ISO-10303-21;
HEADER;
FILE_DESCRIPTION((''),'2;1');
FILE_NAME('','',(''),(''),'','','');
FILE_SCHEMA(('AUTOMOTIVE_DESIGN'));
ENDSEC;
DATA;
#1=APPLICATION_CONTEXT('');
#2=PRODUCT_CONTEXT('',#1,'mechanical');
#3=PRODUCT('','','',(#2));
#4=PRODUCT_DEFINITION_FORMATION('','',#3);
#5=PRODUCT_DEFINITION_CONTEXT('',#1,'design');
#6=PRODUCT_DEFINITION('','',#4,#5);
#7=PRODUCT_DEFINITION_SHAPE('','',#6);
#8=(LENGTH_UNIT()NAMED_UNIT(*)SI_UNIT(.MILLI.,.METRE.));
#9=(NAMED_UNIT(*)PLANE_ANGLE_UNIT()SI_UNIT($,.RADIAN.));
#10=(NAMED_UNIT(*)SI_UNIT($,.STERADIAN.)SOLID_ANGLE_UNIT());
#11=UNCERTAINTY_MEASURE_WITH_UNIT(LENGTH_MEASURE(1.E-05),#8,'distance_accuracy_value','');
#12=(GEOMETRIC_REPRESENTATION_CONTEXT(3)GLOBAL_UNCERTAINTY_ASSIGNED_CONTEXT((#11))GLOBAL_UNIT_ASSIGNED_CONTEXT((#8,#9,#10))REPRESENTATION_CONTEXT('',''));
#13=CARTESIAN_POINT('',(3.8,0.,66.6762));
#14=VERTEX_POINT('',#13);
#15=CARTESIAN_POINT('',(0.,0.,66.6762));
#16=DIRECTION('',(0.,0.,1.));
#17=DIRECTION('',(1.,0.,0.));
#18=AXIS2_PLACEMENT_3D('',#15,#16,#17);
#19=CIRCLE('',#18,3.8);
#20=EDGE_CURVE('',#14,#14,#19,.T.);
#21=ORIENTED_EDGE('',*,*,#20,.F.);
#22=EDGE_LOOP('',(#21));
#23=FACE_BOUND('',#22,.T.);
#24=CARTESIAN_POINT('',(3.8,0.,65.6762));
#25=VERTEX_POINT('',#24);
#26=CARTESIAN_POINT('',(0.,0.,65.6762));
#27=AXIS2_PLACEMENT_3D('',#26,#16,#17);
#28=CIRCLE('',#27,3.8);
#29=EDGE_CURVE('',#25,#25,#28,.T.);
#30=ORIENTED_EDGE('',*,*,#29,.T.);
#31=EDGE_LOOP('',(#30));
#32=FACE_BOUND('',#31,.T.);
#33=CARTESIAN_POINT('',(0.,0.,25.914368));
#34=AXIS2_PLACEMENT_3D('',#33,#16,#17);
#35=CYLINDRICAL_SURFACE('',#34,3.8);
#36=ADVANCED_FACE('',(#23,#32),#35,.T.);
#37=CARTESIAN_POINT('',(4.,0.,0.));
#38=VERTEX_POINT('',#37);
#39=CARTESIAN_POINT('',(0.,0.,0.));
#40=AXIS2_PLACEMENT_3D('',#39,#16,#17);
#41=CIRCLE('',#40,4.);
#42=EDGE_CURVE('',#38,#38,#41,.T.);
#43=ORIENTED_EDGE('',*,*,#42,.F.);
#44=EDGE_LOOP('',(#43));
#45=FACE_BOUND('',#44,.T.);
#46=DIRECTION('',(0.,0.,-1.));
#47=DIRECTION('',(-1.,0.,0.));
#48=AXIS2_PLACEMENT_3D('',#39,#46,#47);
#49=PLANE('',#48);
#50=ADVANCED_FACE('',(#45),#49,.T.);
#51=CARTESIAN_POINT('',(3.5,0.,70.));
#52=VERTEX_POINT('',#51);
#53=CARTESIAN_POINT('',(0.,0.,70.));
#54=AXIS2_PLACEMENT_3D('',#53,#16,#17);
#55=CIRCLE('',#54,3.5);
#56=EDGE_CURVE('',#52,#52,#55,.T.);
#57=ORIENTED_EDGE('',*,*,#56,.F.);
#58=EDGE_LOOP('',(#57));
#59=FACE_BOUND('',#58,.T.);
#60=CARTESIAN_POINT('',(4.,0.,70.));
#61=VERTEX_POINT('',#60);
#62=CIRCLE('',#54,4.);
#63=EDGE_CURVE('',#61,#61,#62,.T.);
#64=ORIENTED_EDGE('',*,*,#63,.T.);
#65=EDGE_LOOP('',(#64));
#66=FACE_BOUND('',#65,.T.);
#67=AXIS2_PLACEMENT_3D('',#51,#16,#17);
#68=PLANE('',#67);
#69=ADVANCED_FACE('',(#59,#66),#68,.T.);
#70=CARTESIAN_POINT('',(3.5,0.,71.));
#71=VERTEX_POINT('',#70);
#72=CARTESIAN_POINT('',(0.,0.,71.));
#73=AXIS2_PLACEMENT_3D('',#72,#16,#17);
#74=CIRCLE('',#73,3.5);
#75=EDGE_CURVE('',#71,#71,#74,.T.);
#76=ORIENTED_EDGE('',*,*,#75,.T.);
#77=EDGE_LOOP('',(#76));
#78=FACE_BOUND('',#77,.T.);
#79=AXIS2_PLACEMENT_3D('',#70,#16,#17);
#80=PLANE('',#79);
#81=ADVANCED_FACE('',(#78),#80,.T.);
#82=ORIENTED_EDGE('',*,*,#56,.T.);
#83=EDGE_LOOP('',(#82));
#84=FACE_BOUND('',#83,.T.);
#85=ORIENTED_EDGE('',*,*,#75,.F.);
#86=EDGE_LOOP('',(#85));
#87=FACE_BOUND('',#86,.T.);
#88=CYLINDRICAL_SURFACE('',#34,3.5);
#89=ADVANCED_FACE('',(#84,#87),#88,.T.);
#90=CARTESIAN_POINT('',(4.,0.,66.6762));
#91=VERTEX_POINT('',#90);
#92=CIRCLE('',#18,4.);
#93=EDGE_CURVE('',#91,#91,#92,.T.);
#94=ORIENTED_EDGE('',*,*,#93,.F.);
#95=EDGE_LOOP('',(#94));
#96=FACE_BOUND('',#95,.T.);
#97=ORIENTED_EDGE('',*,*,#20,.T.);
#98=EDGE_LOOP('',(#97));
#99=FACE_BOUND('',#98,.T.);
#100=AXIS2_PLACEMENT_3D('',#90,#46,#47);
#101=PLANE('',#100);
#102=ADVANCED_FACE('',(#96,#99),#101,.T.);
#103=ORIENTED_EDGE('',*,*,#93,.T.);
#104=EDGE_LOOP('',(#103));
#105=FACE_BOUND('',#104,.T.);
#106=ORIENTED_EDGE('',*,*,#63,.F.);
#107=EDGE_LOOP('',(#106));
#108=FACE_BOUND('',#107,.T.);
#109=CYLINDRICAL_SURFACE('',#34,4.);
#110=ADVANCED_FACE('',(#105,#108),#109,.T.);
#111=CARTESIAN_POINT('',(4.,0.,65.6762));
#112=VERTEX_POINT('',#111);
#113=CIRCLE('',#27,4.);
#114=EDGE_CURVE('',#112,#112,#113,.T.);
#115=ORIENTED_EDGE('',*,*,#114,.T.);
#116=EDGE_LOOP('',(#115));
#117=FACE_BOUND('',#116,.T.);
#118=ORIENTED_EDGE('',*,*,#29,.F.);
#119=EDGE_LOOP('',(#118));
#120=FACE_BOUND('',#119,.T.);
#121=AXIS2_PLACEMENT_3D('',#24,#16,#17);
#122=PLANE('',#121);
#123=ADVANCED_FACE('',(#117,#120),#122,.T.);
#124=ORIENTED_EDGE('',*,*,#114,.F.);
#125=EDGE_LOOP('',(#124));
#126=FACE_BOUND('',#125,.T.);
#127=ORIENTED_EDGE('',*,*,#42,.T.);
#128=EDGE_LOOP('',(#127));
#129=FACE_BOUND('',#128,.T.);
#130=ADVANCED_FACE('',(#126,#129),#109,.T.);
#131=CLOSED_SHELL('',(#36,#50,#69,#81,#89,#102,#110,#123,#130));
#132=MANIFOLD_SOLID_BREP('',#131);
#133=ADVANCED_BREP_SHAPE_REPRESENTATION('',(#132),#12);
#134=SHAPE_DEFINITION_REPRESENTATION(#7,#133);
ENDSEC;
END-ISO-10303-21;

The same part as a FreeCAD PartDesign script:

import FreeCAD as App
import Part
import Sketcher

V = App.Vector

doc = App.newDocument("Part")
params = doc.addObject("Spreadsheet::Sheet", "Params")
for row, (alias, value) in enumerate([
    ("sketch1_width", "4 mm"),
    ("sketch1_height", "71 mm"),
    ("sketch1_height2", "1 mm"),
    ("sketch1_width2", "3.5 mm"),
    ("sketch1_width3", "0.2 mm"),
    ("revolution_angle", "360 deg"),
], start=1):
    params.set(f"A{row}", alias)
    params.set(f"B{row}", "=" + value)
    params.setAlias(f"B{row}", alias)

body = doc.addObject("PartDesign::Body", "Body")

# Sketch on XZ plane
sketch1 = body.newObject("Sketcher::SketchObject", "Sketch")
sketch1.AttachmentSupport = (doc.getObject("XZ_Plane"), [""])
sketch1.MapMode = "FlatFace"
sketch1.addGeometry([
    Part.LineSegment(V(0, 0, 0), V(0, 71, 0)),  # 0
    Part.LineSegment(V(0, 71, 0), V(3.5, 71, 0)),  # 1
    Part.LineSegment(V(3.5, 71, 0), V(3.5, 70, 0)),  # 2
    Part.LineSegment(V(3.5, 70, 0), V(4, 70, 0)),  # 3
    Part.LineSegment(V(4, 70, 0), V(4, 66.6762, 0)),  # 4
    Part.LineSegment(V(4, 66.6762, 0), V(3.8, 66.6762, 0)),  # 5
    Part.LineSegment(V(3.8, 66.6762, 0), V(3.8, 65.6762, 0)),  # 6
    Part.LineSegment(V(3.8, 65.6762, 0), V(4, 65.6762, 0)),  # 7
    Part.LineSegment(V(4, 65.6762, 0), V(4, 0, 0)),  # 8
    Part.LineSegment(V(4, 0, 0), V(0, 0, 0)),  # 9
], False)
sketch1.addConstraint([
    Sketcher.Constraint("Coincident", 0, 2, 1, 1),
    Sketcher.Constraint("Coincident", 1, 2, 2, 1),
    Sketcher.Constraint("Coincident", 2, 2, 3, 1),
    Sketcher.Constraint("Coincident", 3, 2, 4, 1),
    Sketcher.Constraint("Coincident", 4, 2, 5, 1),
    Sketcher.Constraint("Coincident", 5, 2, 6, 1),
    Sketcher.Constraint("Coincident", 6, 2, 7, 1),
    Sketcher.Constraint("Coincident", 7, 2, 8, 1),
    Sketcher.Constraint("Coincident", 8, 2, 9, 1),
    Sketcher.Constraint("Coincident", 9, 2, 0, 1),
    Sketcher.Constraint("Vertical", 0),
    Sketcher.Constraint("Horizontal", 1),
    Sketcher.Constraint("Vertical", 2),
    Sketcher.Constraint("Horizontal", 3),
    Sketcher.Constraint("Vertical", 4),
    Sketcher.Constraint("Horizontal", 5),
    Sketcher.Constraint("Vertical", 6),
    Sketcher.Constraint("Horizontal", 7),
    Sketcher.Constraint("Vertical", 8),
    Sketcher.Constraint("Horizontal", 9),
    Sketcher.Constraint("Coincident", 9, 2, -1, 1),
    Sketcher.Constraint("Vertical", 4, 2, 7, 2),
    Sketcher.Constraint("Equal", 2, 6),
    Sketcher.Constraint("DistanceX", 9, 2, 9, 1, 4.0),
    Sketcher.Constraint("DistanceY", 0, 1, 0, 2, 71.0),
    Sketcher.Constraint("DistanceY", 2, 2, 2, 1, 1.0),
    Sketcher.Constraint("DistanceX", 1, 1, 1, 2, 3.5),
    Sketcher.Constraint("DistanceX", 5, 2, 5, 1, 0.2),
    Sketcher.Constraint("DistanceY", 4, 2, 4, 1, 3.3238),
])
sketch1.setExpression("Constraints[23]", "Params.sketch1_width")
sketch1.setExpression("Constraints[24]", "Params.sketch1_height")
sketch1.setExpression("Constraints[25]", "Params.sketch1_height2")
sketch1.setExpression("Constraints[26]", "Params.sketch1_width2")
sketch1.setExpression("Constraints[27]", "Params.sketch1_width3")
revolution = body.newObject("PartDesign::Revolution", "Revolution")
revolution.Profile = sketch1
revolution.ReferenceAxis = (sketch1, ["V_Axis"])
revolution.setExpression("Angle", "Params.revolution_angle")

doc.recompute()
